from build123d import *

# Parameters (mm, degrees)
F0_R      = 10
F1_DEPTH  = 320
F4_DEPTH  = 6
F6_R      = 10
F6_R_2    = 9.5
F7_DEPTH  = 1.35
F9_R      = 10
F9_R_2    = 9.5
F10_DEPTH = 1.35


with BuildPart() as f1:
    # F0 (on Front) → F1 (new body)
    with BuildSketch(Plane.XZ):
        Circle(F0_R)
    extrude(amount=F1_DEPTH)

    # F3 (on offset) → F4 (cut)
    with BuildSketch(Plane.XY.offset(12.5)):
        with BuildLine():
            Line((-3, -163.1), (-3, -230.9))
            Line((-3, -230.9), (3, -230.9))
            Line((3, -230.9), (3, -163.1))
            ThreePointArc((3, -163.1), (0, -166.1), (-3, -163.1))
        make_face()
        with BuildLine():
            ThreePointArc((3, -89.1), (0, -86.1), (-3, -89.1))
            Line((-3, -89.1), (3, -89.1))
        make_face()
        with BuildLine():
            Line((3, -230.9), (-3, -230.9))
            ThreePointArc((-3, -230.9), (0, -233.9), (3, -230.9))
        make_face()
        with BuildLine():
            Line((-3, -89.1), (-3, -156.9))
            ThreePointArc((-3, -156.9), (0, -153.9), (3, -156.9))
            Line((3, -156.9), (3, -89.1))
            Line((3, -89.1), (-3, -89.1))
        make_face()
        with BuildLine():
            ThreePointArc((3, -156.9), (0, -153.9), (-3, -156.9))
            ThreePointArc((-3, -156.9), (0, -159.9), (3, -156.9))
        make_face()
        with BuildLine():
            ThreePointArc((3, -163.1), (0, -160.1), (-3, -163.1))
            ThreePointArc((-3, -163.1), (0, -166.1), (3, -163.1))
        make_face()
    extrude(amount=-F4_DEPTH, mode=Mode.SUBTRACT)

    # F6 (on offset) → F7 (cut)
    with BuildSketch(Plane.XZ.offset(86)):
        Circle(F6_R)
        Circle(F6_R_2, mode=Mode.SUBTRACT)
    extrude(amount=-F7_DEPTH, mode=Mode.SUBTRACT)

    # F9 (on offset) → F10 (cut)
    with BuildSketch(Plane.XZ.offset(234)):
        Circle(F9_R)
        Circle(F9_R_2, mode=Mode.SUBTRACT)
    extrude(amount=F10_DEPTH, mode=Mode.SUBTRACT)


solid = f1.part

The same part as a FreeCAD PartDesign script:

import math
import FreeCAD as App
import Part
import Sketcher

V = App.Vector

doc = App.newDocument("Part")
body = doc.addObject("PartDesign::Body", "Body")

# Sketch on XZ plane
sketch1 = body.newObject("Sketcher::SketchObject", "Sketch")
sketch1.AttachmentSupport = (doc.getObject("XZ_Plane"), [""])
sketch1.MapMode = "FlatFace"
sketch1.addGeometry(Part.Circle(V(0, 0, 0), V(0, 0, 1), 10), False)
sketch1.addConstraint([
    Sketcher.Constraint("Coincident", 0, 3, -1, 1),
    Sketcher.Constraint("Diameter", 0, 20.0),
])
pad1 = body.newObject("PartDesign::Pad", "Pad")
pad1.Profile = sketch1
pad1.Length = 320

# Sketch on XY plane
sketch2 = body.newObject("Sketcher::SketchObject", "Sketch001")
sketch2.AttachmentSupport = (doc.getObject("XY_Plane"), [""])
sketch2.MapMode = "FlatFace"
sketch2.AttachmentOffset = App.Placement(V(0, 0, 12.5), App.Rotation())
sketch2.addGeometry([
    Part.LineSegment(V(-3, -163.1, 0), V(-3, -230.9, 0)),  # 0
    Part.ArcOfCircle(Part.Circle(V(0, -230.9, 0), V(0, 0, 1), 3), math.radians(180), math.radians(360)),  # 1
    Part.LineSegment(V(3, -230.9, 0), V(3, -163.1, 0)),  # 2
    Part.ArcOfCircle(Part.Circle(V(0, -163.1, 0), V(0, 0, 1), 3), math.radians(0), math.radians(180)),  # 3
    Part.ArcOfCircle(Part.Circle(V(0, -89.1, 0), V(0, 0, 1), 3), math.radians(0), math.radians(180)),  # 4
    Part.LineSegment(V(-3, -89.1, 0), V(-3, -156.9, 0)),  # 5
    Part.ArcOfCircle(Part.Circle(V(0, -156.9, 0), V(0, 0, 1), 3), math.radians(180), math.radians(360)),  # 6
    Part.LineSegment(V(3, -156.9, 0), V(3, -89.1, 0)),  # 7
], False)
sketch2.addConstraint([
    Sketcher.Constraint("Tangent", 0, 2, 1, 1),
    Sketcher.Constraint("Tangent", 1, 2, 2, 1),
    Sketcher.Constraint("Tangent", 2, 2, 3, 1),
    Sketcher.Constraint("Tangent", 3, 2, 0, 1),
    Sketcher.Constraint("Tangent", 4, 2, 5, 1),
    Sketcher.Constraint("Tangent", 5, 2, 6, 1),
    Sketcher.Constraint("Tangent", 6, 2, 7, 1),
    Sketcher.Constraint("Tangent", 7, 2, 4, 1),
    Sketcher.Constraint("Vertical", 0),
    Sketcher.Constraint("Vertical", 2),
    Sketcher.Constraint("Vertical", 5),
    Sketcher.Constraint("Vertical", 7),
    Sketcher.Constraint("Equal", 3, 4),
    Sketcher.Constraint("PointOnObject", 1, 3, -2),
    Sketcher.Constraint("PointOnObject", 4, 3, -2),
    Sketcher.Constraint("Equal", 2, 5),
    Sketcher.Constraint("Radius", 1, 3.0),
    Sketcher.Constraint("DistanceY", 0, 2, 0, 1, 67.8),
    Sketcher.Constraint("DistanceY", 3, 3, 4, 3, 74.0),
    Sketcher.Constraint("DistanceY", 1, 3, -1, 1, 230.9),
])
pocket1 = body.newObject("PartDesign::Pocket", "Pocket")
pocket1.Profile = sketch2
pocket1.Length = 6

# Sketch on XZ plane
sketch3 = body.newObject("Sketcher::SketchObject", "Sketch002")
sketch3.AttachmentSupport = (doc.getObject("XZ_Plane"), [""])
sketch3.MapMode = "FlatFace"
sketch3.AttachmentOffset = App.Placement(V(0, 0, 86), App.Rotation())
sketch3.addGeometry([
    Part.Circle(V(0, 0, 0), V(0, 0, 1), 10),
    Part.Circle(V(0, 0, 0), V(0, 0, 1), 10),
], False)
sketch3.addConstraint([
    Sketcher.Constraint("Coincident", 0, 3, -1, 1),
    Sketcher.Constraint("Coincident", 1, 3, -1, 1),
    Sketcher.Constraint("Diameter", 0, 20.0),
    Sketcher.Constraint("Diameter", 1, 19.0),
])
pocket2 = body.newObject("PartDesign::Pocket", "Pocket001")
pocket2.Profile = sketch3
pocket2.Length = 1.35

# Sketch on XZ plane
sketch4 = body.newObject("Sketcher::SketchObject", "Sketch003")
sketch4.AttachmentSupport = (doc.getObject("XZ_Plane"), [""])
sketch4.MapMode = "FlatFace"
sketch4.AttachmentOffset = App.Placement(V(0, 0, 234), App.Rotation())
sketch4.addGeometry([
    Part.Circle(V(0, 0, 0), V(0, 0, 1), 10),
    Part.Circle(V(0, 0, 0), V(0, 0, 1), 10),
], False)
sketch4.addConstraint([
    Sketcher.Constraint("Coincident", 0, 3, -1, 1),
    Sketcher.Constraint("Coincident", 1, 3, -1, 1),
    Sketcher.Constraint("Diameter", 0, 20.0),
    Sketcher.Constraint("Diameter", 1, 19.0),
])
pocket3 = body.newObject("PartDesign::Pocket", "Pocket002")
pocket3.Profile = sketch4
pocket3.Length = 1.35
pocket3.Reversed = True

doc.recompute()
